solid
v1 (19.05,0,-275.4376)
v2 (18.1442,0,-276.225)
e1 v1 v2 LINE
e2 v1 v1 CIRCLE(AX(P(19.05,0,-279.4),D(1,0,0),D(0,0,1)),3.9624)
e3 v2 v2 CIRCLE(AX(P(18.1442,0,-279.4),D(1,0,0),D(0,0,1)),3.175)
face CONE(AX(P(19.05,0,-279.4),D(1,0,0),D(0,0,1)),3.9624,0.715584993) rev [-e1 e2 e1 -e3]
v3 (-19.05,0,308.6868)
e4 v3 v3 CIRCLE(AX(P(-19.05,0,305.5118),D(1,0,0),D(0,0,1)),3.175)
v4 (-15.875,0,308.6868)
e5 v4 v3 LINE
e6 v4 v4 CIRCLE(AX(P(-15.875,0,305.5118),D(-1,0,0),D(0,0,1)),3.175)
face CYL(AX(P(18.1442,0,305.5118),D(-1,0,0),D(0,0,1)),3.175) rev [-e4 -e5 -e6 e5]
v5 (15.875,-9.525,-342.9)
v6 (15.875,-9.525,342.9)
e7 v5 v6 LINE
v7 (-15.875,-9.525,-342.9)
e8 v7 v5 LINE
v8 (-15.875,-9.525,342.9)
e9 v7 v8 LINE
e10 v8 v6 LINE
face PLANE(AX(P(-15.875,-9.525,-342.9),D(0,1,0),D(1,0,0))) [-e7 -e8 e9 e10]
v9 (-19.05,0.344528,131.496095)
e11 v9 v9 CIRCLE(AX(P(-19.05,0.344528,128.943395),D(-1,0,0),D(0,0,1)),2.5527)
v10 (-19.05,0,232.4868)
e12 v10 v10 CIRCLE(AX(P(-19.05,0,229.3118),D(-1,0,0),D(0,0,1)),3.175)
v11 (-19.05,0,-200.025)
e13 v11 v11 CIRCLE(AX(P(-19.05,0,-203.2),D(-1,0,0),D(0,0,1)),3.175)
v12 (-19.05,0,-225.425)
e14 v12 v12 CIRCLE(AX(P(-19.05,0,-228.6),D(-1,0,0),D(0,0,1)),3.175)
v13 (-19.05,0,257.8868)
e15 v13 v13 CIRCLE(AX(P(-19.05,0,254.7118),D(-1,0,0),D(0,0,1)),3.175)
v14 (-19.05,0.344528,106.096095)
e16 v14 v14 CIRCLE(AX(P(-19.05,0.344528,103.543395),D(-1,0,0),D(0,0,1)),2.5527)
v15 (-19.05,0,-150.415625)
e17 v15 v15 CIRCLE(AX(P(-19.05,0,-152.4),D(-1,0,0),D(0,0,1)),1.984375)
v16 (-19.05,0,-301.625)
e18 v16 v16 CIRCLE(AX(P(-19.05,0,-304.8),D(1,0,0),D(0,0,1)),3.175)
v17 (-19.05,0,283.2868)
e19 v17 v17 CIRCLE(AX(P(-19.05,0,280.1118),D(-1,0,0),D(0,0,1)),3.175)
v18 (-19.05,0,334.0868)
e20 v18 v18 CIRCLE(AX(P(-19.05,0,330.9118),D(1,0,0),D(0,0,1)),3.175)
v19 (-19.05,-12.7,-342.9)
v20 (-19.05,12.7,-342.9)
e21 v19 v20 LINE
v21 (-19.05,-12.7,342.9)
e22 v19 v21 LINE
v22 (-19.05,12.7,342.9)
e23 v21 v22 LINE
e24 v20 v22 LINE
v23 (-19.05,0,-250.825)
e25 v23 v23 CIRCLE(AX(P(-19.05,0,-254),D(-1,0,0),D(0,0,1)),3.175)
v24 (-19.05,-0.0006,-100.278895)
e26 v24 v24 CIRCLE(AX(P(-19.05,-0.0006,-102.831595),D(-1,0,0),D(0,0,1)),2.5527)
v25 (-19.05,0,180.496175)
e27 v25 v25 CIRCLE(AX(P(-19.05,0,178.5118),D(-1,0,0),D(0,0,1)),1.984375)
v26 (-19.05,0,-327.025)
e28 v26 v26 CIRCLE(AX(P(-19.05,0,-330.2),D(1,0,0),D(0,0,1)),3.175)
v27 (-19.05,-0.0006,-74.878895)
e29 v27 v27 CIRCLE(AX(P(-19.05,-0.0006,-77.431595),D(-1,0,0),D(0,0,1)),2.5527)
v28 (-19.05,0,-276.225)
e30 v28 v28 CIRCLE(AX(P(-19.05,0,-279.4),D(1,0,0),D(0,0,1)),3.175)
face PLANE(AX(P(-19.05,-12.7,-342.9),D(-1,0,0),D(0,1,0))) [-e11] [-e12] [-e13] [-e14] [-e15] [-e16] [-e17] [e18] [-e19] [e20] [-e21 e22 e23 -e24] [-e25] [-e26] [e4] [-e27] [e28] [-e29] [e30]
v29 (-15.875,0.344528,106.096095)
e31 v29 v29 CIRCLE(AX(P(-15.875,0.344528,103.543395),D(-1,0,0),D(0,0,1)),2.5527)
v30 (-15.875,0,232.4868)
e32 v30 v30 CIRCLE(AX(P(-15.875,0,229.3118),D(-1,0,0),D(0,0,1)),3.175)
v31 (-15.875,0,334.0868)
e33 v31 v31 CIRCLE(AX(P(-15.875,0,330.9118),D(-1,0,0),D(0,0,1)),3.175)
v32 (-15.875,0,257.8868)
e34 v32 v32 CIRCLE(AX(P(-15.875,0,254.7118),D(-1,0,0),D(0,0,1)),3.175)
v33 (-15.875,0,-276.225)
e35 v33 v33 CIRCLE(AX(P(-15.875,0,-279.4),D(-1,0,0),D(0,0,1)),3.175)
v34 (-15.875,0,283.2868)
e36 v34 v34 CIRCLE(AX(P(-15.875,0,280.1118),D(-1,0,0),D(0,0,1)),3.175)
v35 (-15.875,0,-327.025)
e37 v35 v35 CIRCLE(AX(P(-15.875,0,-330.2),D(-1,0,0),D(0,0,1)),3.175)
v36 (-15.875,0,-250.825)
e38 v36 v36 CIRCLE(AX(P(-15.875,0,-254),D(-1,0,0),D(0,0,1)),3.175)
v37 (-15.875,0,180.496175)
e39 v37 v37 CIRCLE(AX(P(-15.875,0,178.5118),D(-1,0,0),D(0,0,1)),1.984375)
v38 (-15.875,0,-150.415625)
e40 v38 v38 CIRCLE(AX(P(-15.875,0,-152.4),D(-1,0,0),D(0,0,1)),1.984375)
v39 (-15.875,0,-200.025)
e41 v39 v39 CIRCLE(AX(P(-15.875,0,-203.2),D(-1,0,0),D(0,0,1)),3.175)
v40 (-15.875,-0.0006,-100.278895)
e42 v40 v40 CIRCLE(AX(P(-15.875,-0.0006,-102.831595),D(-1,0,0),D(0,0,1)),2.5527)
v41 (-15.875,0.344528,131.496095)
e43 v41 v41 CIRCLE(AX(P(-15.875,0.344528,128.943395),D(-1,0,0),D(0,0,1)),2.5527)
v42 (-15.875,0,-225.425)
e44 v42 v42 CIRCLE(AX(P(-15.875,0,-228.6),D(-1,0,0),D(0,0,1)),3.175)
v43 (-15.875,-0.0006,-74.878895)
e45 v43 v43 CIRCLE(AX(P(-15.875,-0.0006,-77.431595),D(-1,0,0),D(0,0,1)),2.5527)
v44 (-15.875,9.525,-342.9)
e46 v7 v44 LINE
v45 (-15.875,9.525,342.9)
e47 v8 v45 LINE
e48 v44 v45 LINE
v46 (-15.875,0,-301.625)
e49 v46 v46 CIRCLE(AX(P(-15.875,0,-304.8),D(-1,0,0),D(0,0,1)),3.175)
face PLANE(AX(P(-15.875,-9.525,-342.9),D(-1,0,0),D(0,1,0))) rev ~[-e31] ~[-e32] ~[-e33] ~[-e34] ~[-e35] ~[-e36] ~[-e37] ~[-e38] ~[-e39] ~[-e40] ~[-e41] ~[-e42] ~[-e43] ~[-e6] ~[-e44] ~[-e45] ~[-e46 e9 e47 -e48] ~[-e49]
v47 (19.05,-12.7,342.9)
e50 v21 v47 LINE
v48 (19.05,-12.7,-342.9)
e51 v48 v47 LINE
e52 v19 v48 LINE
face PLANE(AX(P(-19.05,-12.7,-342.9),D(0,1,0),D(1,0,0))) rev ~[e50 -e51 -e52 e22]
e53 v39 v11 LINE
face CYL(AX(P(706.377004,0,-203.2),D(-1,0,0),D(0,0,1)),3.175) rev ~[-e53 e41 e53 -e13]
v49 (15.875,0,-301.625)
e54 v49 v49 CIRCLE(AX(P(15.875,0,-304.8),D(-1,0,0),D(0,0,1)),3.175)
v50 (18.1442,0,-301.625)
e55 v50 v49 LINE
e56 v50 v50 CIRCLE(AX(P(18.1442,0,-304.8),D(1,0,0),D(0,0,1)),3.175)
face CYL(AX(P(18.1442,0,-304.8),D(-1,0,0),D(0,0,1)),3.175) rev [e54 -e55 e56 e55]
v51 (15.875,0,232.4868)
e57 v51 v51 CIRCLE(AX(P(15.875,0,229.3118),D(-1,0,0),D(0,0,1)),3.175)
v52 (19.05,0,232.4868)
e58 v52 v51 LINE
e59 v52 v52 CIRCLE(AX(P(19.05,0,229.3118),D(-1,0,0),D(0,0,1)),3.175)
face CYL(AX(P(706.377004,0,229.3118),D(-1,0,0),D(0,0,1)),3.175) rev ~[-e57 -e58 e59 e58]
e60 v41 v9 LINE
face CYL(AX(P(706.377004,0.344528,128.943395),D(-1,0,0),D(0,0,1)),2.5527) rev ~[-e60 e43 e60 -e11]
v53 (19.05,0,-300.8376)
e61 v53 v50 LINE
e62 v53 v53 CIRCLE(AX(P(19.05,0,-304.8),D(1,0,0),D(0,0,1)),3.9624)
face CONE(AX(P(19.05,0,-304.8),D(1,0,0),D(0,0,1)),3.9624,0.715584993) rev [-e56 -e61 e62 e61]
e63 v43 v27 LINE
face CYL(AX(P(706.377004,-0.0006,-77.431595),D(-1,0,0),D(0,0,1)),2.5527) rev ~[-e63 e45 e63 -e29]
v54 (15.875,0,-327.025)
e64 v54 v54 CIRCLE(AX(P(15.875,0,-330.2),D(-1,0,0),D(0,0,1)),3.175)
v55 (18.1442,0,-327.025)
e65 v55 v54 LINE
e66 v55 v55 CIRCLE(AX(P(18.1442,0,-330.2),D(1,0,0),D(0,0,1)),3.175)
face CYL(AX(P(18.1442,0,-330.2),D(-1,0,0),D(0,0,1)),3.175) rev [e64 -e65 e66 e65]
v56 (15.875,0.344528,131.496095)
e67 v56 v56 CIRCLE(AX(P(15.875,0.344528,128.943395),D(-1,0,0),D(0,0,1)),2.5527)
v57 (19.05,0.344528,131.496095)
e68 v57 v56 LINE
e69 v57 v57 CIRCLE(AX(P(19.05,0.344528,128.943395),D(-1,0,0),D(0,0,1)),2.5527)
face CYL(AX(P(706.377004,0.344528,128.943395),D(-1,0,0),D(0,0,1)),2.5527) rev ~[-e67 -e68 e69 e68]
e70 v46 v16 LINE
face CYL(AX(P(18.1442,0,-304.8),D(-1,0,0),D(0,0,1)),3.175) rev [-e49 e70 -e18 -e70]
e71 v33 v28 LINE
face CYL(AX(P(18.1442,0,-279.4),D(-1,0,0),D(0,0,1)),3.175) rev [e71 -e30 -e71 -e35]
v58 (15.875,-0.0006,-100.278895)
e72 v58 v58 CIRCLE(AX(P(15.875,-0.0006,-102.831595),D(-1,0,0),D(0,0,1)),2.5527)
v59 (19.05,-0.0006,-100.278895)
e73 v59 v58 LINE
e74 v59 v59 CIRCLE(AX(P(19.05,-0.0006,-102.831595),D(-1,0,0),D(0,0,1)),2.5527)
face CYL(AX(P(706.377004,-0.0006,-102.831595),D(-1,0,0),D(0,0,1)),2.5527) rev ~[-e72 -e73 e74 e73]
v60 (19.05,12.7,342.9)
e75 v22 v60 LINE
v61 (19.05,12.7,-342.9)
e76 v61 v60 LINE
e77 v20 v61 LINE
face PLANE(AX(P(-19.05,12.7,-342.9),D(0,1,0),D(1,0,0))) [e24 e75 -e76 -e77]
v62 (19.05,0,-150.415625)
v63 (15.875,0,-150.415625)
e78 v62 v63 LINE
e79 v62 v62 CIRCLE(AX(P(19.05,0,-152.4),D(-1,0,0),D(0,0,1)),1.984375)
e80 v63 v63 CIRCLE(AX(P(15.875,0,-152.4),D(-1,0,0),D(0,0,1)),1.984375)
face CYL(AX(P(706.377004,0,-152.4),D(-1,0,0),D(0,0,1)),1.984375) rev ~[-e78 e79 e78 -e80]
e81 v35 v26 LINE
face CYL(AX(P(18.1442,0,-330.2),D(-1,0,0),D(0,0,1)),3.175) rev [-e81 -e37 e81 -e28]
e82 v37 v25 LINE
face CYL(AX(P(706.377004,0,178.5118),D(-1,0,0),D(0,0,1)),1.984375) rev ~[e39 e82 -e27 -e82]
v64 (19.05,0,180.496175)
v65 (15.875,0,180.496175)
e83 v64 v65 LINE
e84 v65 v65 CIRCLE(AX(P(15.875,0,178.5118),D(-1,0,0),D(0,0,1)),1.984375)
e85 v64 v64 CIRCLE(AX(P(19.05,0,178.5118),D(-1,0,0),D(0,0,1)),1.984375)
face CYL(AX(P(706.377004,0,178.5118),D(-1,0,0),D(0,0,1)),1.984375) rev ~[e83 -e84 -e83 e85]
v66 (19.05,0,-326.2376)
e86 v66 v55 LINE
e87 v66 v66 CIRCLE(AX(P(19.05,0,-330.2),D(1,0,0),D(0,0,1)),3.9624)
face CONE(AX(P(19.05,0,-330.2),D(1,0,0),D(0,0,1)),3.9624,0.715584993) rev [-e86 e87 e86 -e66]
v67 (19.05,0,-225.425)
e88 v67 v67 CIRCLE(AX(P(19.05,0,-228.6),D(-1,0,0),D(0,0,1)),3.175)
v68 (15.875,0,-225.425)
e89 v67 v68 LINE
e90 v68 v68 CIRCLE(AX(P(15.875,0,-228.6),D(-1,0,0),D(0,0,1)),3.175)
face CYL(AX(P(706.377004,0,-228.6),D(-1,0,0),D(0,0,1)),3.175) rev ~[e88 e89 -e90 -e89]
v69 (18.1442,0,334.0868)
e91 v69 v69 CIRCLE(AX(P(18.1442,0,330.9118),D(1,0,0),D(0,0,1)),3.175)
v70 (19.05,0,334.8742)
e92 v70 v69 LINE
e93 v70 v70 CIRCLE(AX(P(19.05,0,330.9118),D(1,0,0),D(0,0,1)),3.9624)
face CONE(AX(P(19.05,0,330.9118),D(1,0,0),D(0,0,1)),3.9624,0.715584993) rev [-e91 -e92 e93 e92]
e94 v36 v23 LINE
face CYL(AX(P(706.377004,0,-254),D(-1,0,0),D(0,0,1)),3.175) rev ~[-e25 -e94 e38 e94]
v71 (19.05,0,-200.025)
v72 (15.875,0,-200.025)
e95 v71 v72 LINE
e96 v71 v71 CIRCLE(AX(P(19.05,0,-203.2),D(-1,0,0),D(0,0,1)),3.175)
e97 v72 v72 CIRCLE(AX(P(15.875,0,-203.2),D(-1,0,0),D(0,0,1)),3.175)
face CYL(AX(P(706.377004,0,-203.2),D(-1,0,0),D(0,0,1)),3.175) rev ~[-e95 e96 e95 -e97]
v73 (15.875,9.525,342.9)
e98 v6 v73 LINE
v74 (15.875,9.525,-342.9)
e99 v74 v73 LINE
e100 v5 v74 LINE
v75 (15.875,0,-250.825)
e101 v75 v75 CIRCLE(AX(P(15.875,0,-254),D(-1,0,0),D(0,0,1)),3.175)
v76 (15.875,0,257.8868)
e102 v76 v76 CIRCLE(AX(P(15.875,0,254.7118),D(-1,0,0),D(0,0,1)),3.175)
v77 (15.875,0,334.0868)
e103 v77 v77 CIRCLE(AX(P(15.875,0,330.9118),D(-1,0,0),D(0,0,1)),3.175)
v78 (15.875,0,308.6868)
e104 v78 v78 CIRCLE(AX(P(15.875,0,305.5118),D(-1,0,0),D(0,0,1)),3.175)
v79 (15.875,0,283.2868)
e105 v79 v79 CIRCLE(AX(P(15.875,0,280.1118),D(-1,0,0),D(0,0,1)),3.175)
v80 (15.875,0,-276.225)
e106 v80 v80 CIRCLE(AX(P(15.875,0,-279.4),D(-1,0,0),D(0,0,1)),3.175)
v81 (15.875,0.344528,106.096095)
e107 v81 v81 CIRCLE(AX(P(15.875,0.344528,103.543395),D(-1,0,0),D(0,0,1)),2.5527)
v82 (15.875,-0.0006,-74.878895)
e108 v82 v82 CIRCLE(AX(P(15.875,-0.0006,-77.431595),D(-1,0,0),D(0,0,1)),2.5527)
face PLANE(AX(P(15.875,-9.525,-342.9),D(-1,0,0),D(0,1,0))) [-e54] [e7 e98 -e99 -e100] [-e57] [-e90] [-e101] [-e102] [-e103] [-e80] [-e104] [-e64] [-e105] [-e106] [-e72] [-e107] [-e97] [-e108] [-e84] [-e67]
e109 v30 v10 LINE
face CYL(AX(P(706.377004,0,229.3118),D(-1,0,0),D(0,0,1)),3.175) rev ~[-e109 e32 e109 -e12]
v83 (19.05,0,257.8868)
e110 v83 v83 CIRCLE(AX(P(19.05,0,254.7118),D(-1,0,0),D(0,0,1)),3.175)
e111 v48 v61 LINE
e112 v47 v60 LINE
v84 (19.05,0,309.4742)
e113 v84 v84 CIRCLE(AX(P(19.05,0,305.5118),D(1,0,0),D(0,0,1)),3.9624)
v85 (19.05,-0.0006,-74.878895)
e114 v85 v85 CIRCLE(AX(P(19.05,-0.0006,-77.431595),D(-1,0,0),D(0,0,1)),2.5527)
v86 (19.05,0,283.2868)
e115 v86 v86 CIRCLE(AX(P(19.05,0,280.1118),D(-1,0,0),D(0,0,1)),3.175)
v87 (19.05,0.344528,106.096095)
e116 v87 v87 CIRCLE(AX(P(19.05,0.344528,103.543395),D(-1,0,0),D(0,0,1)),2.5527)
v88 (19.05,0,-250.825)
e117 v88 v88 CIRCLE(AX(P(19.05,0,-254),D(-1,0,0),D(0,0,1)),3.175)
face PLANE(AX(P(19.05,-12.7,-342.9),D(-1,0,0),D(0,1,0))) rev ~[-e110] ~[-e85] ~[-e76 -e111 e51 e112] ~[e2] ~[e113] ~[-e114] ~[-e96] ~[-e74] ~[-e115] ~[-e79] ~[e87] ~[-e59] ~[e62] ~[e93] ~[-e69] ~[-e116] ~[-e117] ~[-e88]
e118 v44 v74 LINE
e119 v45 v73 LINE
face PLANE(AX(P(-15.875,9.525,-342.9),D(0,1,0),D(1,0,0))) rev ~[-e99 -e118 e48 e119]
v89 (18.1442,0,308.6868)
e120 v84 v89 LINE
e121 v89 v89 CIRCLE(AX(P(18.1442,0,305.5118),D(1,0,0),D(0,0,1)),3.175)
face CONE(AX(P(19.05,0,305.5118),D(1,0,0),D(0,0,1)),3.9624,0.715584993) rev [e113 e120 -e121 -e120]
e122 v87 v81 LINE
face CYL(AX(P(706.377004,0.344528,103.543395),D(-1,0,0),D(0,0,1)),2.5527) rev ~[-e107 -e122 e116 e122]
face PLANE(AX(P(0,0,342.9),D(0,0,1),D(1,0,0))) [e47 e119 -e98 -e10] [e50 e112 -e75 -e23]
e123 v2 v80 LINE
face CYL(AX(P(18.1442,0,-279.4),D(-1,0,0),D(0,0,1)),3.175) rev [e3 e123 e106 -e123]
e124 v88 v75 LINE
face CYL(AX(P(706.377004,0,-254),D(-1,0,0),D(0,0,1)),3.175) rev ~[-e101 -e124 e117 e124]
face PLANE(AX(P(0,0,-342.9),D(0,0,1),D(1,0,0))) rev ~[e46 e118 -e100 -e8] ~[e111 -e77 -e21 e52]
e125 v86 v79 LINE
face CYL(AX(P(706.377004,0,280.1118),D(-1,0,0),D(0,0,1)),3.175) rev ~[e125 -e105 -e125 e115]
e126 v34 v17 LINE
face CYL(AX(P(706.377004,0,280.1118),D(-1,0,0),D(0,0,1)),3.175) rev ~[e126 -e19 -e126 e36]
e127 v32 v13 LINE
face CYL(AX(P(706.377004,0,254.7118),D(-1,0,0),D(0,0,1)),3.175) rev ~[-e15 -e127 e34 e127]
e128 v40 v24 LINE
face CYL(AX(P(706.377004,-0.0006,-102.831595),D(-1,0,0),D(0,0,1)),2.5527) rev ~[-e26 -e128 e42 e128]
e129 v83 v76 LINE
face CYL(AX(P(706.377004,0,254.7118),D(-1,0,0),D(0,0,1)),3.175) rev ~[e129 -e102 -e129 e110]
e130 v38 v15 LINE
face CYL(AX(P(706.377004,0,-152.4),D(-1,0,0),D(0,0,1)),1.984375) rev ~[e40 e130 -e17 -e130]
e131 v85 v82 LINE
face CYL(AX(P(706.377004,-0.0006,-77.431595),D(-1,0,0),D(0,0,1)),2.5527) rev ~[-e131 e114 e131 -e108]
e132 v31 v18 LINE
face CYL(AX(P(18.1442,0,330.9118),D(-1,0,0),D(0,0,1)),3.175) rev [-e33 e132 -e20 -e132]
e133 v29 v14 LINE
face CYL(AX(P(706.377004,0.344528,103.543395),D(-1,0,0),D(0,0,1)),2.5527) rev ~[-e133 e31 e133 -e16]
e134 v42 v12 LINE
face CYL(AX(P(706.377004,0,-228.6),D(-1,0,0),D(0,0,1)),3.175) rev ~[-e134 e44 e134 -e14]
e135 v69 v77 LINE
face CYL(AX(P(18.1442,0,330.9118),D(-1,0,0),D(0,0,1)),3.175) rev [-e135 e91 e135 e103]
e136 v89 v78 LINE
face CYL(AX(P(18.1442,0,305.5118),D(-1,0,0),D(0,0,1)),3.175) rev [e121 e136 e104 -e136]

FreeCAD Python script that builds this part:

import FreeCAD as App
import Part
import Sketcher
Q = App.Units.Quantity


def add_polygon(sketch, points):
    """Adds a closed chain of lines whose ends are joined by coincident constraints."""
    first, n = sketch.GeometryCount, len(points)
    for a, b in zip(points, points[1:] + points[:1]):
        sketch.addGeometry(Part.LineSegment(App.Vector(*a, 0), App.Vector(*b, 0)), False)
    for i in range(n):
        sketch.addConstraint(Sketcher.Constraint("Coincident", first + i, 2, first + (i + 1) % n, 1))

doc = App.newDocument("Part")
body = doc.addObject("PartDesign::Body", "Body")

# Sketch on XY plane
sketch1 = body.newObject("Sketcher::SketchObject", "Sketch")
sketch1.AttachmentSupport = (doc.getObject("XY_Plane"), [""])
sketch1.MapMode = "FlatFace"
add_polygon(sketch1, [(-19, 13), (-19, -13), (19, -13), (19, 13)])  # lines 0-3
add_polygon(sketch1, [(16, -10), (-16, -10), (-16, 10), (16, 10)])  # lines 4-7
sketch1.addConstraint([
    Sketcher.Constraint("Vertical", 0),
    Sketcher.Constraint("Horizontal", 1),
    Sketcher.Constraint("Vertical", 2),
    Sketcher.Constraint("Horizontal", 3),
    Sketcher.Constraint("Horizontal", 4),
    Sketcher.Constraint("Vertical", 5),
    Sketcher.Constraint("Horizontal", 6),
    Sketcher.Constraint("Vertical", 7),
    Sketcher.Constraint("Symmetric", 0, 2, 2, 2, -1, 1),
    Sketcher.Constraint("Symmetric", 4, 2, 6, 2, -1, 1),
    Sketcher.Constraint("DistanceY", 0, 2, 0, 1, Q("1 in")),
    Sketcher.Constraint("DistanceX", 1, 1, 1, 2, Q("1.5 in")),
    Sketcher.Constraint("DistanceX", 4, 2, 4, 1, Q("1.25 in")),
    Sketcher.Constraint("DistanceY", 5, 1, 5, 2, Q("0.75 in")),
])
pad1 = body.newObject("PartDesign::Pad", "Pad")
pad1.Profile = sketch1
pad1.Type = "TwoLengths"
pad1.Length = Q("13.5 in")
pad1.Length2 = Q("13.5 in")

# Sketch on XZ plane
sketch2 = body.newObject("Sketcher::SketchObject", "Sketch001")
sketch2.AttachmentSupport = (doc.getObject("XZ_Plane"), [""])
sketch2.MapMode = "FlatFace"
add_polygon(sketch2, [(19.1, -330.2), (-19.1, -330.2), (-19.1, -327), (18.1, -327), (19.1, -326.2)])  # lines 0-4
sketch2.addGeometry(Part.LineSegment(App.Vector(-19.1, -330.2, 0), App.Vector(19.1, -330.2, 0)), True)  # axis
sketch2.addConstraint([
    Sketcher.Constraint("Horizontal", 0),
    Sketcher.Constraint("Vertical", 1),
    Sketcher.Constraint("Horizontal", 2),
    Sketcher.Constraint("Vertical", 4),
    Sketcher.Constraint("Horizontal", 5),
    Sketcher.Constraint("Coincident", 5, 1, 0, 2),
    Sketcher.Constraint("Vertical", 3, 2, 5, 2),
    Sketcher.Constraint("DistanceX", 0, 2, 0, 1, Q("1.5 in")),
    Sketcher.Constraint("DistanceY", 0, 2, -1, 1, Q("13 in")),
    Sketcher.Constraint("Angle", 3, Q("41 deg")),
    Sketcher.Constraint("DistanceY", 1, 1, 1, 2, Q("0.125 in")),
    Sketcher.Constraint("DistanceY", 4, 2, 4, 1, Q("0.156 in")),
    Sketcher.Constraint("DistanceX", 0, 2, -1, 1, Q("0.75 in")),
])
groove = body.newObject("PartDesign::Groove", "Groove")
groove.Profile = sketch2
groove.ReferenceAxis = (sketch2, ["Axis0"])
groove.Angle = 360
doc.recompute()

linearpattern = body.newObject("PartDesign::LinearPattern", "LinearPattern")
linearpattern.Originals = [groove]
linearpattern.Direction = (doc.getObject("Z_Axis"), [""])
linearpattern.Mode = "offset"
linearpattern.Offset = Q("1 in")
linearpattern.Occurrences = 2
body.Tip = linearpattern
doc.recompute()

linearpattern2 = body.newObject("PartDesign::LinearPattern", "LinearPattern001")
linearpattern2.Originals = [groove]
linearpattern2.Direction = (doc.getObject("Z_Axis"), [""])
linearpattern2.Mode = "offset"
linearpattern2.Offset = 661.1118
linearpattern2.Occurrences = 2
body.Tip = linearpattern2
doc.recompute()

linearpattern3 = body.newObject("PartDesign::LinearPattern", "LinearPattern002")
linearpattern3.Originals = [groove]
linearpattern3.Direction = (doc.getObject("Z_Axis"), [""])
linearpattern3.Mode = "offset"
linearpattern3.Offset = Q("2 in")
linearpattern3.Occurrences = 2
body.Tip = linearpattern3
doc.recompute()

linearpattern4 = body.newObject("PartDesign::LinearPattern", "LinearPattern003")
linearpattern4.Originals = [groove]
linearpattern4.Direction = (doc.getObject("Z_Axis"), [""])
linearpattern4.Mode = "offset"
linearpattern4.Offset = 635.7118
linearpattern4.Occurrences = 2
body.Tip = linearpattern4

# Sketch on YZ plane
sketch3 = body.newObject("Sketcher::SketchObject", "Sketch002")
sketch3.AttachmentSupport = (doc.getObject("YZ_Plane"), [""])
sketch3.MapMode = "FlatFace"
sketch3.AttachmentOffset = App.Placement(App.Vector(0, 0, 0.75 * 25.4), App.Rotation())
sketch3.addGeometry([
    Part.Circle(App.Vector(0, 280.1, 0), App.Vector(0, 0, 1), 3.2),  # 0
    Part.Circle(App.Vector(0, 254.7, 0), App.Vector(0, 0, 1), 3.2),  # 1
    Part.Circle(App.Vector(0, 229.3, 0), App.Vector(0, 0, 1), 3.2),  # 2
    Part.Circle(App.Vector(0, -254, 0), App.Vector(0, 0, 1), 3.2),  # 3
    Part.Circle(App.Vector(0, -228.6, 0), App.Vector(0, 0, 1), 3.2),  # 4
    Part.Circle(App.Vector(0, -203.2, 0), App.Vector(0, 0, 1), 3.2),  # 5
], False)
sketch3.addConstraint([
    Sketcher.Constraint("Equal", 0, 1),
    Sketcher.Constraint("Equal", 1, 2),
    Sketcher.Constraint("Equal", 2, 3),
    Sketcher.Constraint("Equal", 3, 4),
    Sketcher.Constraint("Equal", 4, 5),
    Sketcher.Constraint("PointOnObject", 0, 3, -2),
    Sketcher.Constraint("PointOnObject", 1, 3, -2),
    Sketcher.Constraint("PointOnObject", 2, 3, -2),
    Sketcher.Constraint("PointOnObject", 3, 3, -2),
    Sketcher.Constraint("PointOnObject", 4, 3, -2),
    Sketcher.Constraint("PointOnObject", 5, 3, -2),
    Sketcher.Constraint("Diameter", 0, Q("0.25 in")),
    Sketcher.Constraint("DistanceY", 3, 3, -1, 1, Q("10 in")),
    Sketcher.Constraint("DistanceY", 4, 3, -1, 1, Q("9 in")),
    Sketcher.Constraint("DistanceY", 5, 3, -1, 1, Q("8 in")),
    Sketcher.Constraint("DistanceY", 1, 3, 0, 3, Q("1 in")),
    Sketcher.Constraint("DistanceY", 2, 3, 1, 3, Q("1 in")),
    Sketcher.Constraint("DistanceY", -1, 1, 0, 3, Q("280.1118 mm")),
])
doc.recompute()
hole = body.newObject("PartDesign::Hole", "Hole")
hole.Profile = sketch3
hole.ThreadType = "None"
hole.Diameter = Q("0.25 in")
hole.DepthType = "ThroughAll"

# Sketch on YZ plane
sketch4 = body.newObject("Sketcher::SketchObject", "Sketch003")
sketch4.AttachmentSupport = (doc.getObject("YZ_Plane"), [""])
sketch4.MapMode = "FlatFace"
sketch4.AttachmentOffset = App.Placement(App.Vector(0, 0, 0.75 * 25.4), App.Rotation())
sketch4.addGeometry([
    Part.Circle(App.Vector(0, -152.4, 0), App.Vector(0, 0, 1), 2),
    Part.Circle(App.Vector(0, 178.5, 0), App.Vector(0, 0, 1), 2),
], False)
sketch4.addConstraint([
    Sketcher.Constraint("Equal", 0, 1),
    Sketcher.Constraint("PointOnObject", 0, 3, -2),
    Sketcher.Constraint("PointOnObject", 1, 3, -2),
    Sketcher.Constraint("Diameter", 0, Q("0.15625 in")),
    Sketcher.Constraint("DistanceY", 0, 3, -1, 1, Q("6 in")),
    Sketcher.Constraint("DistanceY", -1, 1, 1, 3, Q("178.5118 mm")),
])
doc.recompute()
hole2 = body.newObject("PartDesign::Hole", "Hole001")
hole2.Profile = sketch4
hole2.ThreadType = "None"
hole2.Diameter = Q("0.15625 in")
hole2.DepthType = "ThroughAll"

# Sketch on YZ plane
sketch5 = body.newObject("Sketcher::SketchObject", "Sketch004")
sketch5.AttachmentSupport = (doc.getObject("YZ_Plane"), [""])
sketch5.MapMode = "FlatFace"
sketch5.AttachmentOffset = App.Placement(App.Vector(0, 0, 0.75 * 25.4), App.Rotation())
sketch5.addGeometry([
    Part.Circle(App.Vector(0.3, 128.9, 0), App.Vector(0, 0, 1), 2.6),
    Part.Circle(App.Vector(0.3, 103.5, 0), App.Vector(0, 0, 1), 2.6),
    Part.Circle(App.Vector(0, -77.4, 0), App.Vector(0, 0, 1), 2.6),
    Part.Circle(App.Vector(0, -102.8, 0), App.Vector(0, 0, 1), 2.6),
], False)
sketch5.addConstraint([
    Sketcher.Constraint("Equal", 0, 1),
    Sketcher.Constraint("Equal", 1, 2),
    Sketcher.Constraint("Equal", 2, 3),
    Sketcher.Constraint("Vertical", 0, 3, 1, 3),
    Sketcher.Constraint("Vertical", 2, 3, 3, 3),
    Sketcher.Constraint("Diameter", 0, Q("0.201 in")),
    Sketcher.Constraint("DistanceY", 1, 3, 0, 3, Q("1 in")),
    Sketcher.Constraint("DistanceY", 3, 3, 2, 3, Q("1 in")),
    Sketcher.Constraint("DistanceX", 2, 3, -1, 1, Q("0.0006 mm")),
    Sketcher.Constraint("DistanceX", -1, 1, 0, 3, Q("0.344528 mm")),
    Sketcher.Constraint("DistanceY", 2, 3, 1, 3, Q("180.97499 mm")),
    Sketcher.Constraint("DistanceY", -1, 1, 0, 3, Q("128.943395 mm")),
])
doc.recompute()
hole3 = body.newObject("PartDesign::Hole", "Hole002")
hole3.Profile = sketch5
hole3.ThreadType = "None"
hole3.Diameter = Q("0.201 in")
hole3.DepthType = "ThroughAll"

doc.recompute()
